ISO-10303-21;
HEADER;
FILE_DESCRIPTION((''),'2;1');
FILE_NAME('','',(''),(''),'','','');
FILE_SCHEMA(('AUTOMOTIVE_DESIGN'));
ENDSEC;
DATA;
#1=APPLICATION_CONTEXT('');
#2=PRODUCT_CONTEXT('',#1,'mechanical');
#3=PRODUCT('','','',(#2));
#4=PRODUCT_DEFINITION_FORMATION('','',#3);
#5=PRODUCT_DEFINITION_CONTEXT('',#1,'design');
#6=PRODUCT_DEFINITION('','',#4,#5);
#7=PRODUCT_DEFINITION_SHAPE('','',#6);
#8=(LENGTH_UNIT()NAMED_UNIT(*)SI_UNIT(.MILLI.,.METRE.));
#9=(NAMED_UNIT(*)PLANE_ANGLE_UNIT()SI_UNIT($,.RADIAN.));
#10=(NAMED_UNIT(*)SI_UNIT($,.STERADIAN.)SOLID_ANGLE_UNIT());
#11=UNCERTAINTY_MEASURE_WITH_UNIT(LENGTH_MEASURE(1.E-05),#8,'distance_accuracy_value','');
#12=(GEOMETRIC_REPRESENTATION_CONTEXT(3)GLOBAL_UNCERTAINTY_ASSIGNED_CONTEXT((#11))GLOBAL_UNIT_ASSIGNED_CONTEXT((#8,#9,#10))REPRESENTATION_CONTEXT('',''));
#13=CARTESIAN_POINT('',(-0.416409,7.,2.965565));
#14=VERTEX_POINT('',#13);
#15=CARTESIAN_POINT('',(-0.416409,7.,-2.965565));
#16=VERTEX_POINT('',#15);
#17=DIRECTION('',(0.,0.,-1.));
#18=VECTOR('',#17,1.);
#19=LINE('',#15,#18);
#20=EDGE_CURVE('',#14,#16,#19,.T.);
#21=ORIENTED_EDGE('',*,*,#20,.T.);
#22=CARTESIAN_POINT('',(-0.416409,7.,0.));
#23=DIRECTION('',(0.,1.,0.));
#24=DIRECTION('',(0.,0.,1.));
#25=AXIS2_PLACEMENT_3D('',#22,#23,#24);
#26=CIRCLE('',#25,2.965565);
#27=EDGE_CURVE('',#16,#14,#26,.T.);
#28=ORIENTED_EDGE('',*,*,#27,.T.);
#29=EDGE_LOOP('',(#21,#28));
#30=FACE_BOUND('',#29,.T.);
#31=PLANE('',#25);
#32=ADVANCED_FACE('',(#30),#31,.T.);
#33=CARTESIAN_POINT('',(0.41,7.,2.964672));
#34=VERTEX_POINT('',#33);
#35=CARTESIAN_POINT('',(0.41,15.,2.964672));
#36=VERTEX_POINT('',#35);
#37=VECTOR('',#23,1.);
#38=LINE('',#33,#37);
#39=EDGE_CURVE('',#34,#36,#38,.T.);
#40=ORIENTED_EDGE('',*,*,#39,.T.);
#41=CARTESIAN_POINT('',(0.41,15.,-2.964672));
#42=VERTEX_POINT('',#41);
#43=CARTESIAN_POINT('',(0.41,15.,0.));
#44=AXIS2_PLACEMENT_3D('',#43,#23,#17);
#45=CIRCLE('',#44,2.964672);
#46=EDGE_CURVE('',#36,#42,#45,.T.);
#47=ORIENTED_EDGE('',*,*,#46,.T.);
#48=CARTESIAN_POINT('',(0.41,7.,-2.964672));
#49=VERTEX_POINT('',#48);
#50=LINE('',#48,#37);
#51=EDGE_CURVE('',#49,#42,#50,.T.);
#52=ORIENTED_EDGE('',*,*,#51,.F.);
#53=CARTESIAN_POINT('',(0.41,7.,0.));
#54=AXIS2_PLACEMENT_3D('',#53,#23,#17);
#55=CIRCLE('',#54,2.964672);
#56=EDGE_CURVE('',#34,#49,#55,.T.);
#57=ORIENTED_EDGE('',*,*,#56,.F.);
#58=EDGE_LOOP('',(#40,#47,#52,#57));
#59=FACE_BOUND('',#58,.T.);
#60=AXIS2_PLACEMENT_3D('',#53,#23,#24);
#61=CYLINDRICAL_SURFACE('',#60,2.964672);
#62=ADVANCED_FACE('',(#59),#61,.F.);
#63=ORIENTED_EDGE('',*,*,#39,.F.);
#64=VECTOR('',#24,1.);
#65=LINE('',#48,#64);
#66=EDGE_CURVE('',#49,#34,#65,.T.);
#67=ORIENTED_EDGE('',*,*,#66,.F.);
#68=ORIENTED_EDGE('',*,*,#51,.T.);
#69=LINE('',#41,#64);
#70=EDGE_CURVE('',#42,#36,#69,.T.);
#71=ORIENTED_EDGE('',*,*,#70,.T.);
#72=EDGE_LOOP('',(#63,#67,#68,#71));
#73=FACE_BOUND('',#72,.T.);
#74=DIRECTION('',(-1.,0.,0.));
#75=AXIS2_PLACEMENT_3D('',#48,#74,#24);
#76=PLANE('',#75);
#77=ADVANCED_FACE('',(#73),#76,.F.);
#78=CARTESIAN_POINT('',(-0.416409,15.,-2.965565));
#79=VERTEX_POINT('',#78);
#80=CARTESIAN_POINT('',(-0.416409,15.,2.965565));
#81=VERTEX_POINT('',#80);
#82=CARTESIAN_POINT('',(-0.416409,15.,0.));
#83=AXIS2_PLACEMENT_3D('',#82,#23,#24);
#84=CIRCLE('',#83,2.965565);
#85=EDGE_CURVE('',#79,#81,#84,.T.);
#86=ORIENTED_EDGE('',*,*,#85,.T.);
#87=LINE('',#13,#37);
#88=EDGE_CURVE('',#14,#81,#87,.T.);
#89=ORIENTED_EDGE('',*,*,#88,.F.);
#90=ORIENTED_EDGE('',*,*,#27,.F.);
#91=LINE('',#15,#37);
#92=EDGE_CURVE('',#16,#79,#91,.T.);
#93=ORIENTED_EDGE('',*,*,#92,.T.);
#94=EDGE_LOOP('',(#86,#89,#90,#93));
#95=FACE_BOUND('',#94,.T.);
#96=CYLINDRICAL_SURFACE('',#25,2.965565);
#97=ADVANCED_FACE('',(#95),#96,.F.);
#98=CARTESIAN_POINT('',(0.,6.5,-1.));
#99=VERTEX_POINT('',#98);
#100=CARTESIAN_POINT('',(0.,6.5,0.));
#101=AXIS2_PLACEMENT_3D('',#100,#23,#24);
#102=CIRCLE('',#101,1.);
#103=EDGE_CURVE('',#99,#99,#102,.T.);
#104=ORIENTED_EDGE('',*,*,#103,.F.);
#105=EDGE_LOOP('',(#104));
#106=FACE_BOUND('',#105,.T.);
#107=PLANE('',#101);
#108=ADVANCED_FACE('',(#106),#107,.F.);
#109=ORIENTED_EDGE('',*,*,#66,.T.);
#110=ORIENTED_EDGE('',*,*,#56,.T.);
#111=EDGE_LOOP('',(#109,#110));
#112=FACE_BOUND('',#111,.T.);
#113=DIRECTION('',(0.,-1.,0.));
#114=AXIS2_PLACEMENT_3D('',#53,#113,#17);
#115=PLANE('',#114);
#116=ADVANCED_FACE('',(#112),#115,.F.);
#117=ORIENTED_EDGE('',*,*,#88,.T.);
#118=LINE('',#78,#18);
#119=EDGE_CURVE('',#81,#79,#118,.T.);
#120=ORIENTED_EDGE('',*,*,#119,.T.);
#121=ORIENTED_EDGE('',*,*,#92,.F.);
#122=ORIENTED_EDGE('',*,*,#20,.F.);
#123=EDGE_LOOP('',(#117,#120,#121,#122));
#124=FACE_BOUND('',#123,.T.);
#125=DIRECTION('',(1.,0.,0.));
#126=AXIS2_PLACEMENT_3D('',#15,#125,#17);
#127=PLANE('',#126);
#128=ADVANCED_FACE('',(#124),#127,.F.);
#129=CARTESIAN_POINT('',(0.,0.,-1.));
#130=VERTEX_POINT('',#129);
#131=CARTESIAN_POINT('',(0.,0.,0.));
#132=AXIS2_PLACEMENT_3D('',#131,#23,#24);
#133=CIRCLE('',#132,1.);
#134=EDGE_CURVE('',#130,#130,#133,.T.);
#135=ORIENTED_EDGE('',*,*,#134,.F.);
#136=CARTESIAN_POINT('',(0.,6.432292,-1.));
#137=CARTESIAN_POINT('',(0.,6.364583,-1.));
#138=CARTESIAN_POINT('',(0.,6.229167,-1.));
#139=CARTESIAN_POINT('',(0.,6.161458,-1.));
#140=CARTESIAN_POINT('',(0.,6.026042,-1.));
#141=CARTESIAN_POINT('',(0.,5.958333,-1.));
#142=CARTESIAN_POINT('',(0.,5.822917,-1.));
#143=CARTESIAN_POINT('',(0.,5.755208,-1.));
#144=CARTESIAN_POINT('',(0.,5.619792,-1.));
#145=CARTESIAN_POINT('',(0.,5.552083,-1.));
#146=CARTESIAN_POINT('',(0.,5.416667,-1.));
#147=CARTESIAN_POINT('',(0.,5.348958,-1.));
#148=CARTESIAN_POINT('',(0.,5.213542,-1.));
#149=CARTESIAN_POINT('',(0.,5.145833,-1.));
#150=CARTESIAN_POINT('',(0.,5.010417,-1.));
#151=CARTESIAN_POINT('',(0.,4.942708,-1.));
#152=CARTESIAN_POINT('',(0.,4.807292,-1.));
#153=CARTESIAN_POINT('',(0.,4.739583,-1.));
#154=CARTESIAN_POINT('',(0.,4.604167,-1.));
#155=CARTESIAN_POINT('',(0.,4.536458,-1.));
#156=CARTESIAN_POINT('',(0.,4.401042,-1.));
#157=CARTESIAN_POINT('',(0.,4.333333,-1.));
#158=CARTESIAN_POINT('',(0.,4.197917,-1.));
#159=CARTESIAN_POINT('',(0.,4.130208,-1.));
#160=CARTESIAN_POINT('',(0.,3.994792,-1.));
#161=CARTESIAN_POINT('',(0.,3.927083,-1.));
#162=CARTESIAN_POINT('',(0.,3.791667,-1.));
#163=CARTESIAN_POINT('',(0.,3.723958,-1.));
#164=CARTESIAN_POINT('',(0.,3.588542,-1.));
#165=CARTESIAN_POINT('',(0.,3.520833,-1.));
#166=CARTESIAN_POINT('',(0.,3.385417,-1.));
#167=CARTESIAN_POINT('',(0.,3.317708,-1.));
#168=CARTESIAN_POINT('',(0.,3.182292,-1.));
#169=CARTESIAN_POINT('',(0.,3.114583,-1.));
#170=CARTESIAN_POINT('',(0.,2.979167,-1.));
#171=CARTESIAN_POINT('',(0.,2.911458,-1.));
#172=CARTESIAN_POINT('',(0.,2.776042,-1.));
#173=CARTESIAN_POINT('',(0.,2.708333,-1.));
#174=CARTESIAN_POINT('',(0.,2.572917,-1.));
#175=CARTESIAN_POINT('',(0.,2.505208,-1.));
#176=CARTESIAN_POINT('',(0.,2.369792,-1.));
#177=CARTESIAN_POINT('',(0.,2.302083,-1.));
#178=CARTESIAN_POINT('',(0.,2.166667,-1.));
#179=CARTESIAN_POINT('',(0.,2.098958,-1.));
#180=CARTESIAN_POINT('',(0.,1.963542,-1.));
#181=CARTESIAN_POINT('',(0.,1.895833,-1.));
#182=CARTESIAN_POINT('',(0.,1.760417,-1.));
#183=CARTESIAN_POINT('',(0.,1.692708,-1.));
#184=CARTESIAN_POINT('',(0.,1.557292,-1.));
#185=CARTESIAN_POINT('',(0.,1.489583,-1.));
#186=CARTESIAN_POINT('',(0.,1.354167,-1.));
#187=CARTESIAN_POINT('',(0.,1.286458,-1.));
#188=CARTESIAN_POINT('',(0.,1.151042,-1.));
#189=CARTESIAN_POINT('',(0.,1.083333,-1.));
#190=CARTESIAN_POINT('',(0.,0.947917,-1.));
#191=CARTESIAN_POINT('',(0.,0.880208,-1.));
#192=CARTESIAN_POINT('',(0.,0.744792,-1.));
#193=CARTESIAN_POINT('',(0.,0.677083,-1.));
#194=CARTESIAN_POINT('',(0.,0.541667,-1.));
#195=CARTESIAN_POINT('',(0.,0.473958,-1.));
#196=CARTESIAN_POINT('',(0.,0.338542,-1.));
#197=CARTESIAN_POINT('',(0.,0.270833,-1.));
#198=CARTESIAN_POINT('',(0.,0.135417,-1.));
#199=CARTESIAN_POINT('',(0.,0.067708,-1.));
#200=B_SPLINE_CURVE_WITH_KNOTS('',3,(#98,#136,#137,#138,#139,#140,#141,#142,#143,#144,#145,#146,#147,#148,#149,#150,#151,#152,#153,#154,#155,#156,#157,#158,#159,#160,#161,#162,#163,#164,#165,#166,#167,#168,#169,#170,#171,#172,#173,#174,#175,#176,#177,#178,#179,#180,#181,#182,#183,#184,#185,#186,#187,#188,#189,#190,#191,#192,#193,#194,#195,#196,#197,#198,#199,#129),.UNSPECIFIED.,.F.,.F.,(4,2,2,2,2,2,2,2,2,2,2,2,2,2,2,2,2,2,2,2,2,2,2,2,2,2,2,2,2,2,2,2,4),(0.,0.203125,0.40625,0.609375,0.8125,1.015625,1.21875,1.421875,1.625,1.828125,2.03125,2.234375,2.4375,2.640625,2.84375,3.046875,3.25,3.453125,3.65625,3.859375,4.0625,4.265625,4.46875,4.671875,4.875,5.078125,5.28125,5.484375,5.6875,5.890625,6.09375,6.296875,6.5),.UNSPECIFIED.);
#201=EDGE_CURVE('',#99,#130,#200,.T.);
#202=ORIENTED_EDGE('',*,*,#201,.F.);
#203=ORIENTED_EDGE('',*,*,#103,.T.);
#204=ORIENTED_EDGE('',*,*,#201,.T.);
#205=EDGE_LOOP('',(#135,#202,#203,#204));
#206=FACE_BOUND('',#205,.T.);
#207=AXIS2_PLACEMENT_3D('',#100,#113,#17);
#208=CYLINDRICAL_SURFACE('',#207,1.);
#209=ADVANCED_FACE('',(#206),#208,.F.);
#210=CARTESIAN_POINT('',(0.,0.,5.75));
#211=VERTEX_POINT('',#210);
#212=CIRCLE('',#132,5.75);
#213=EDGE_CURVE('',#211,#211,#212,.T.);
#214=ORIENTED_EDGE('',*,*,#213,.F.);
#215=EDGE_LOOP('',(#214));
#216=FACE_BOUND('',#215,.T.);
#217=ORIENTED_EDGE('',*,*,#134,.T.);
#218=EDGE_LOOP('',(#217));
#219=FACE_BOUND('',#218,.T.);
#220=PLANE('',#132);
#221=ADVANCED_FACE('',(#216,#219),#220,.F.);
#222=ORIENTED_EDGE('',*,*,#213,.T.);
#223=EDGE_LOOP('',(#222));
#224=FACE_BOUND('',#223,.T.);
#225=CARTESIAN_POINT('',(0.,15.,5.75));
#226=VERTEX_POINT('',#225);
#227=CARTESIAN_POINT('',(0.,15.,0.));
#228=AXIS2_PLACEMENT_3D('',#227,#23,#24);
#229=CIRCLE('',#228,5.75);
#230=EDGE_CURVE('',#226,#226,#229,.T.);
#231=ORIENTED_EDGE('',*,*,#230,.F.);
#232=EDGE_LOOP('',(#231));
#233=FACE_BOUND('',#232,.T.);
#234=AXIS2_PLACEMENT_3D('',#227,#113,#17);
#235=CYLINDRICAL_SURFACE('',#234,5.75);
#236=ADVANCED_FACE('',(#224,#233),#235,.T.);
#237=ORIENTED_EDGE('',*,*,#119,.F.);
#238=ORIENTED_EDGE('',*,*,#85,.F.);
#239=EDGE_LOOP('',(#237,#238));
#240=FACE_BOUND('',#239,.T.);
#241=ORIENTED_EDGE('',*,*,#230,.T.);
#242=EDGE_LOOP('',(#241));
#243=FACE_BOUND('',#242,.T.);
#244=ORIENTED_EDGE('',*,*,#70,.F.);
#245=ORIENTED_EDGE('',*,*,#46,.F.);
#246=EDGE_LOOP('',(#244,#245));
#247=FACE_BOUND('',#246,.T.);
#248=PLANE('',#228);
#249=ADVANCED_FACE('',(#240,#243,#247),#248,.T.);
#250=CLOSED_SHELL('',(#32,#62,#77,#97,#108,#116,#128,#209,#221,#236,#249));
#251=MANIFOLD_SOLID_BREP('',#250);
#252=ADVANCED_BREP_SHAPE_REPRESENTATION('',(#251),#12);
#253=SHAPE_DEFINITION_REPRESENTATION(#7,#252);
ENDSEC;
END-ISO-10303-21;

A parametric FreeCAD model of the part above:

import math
import FreeCAD as App
import Part
import Sketcher
from FreeCAD import Vector

doc = App.newDocument("Part")
body = doc.addObject("PartDesign::Body", "Body")

sketch1 = body.newObject("Sketcher::SketchObject", "Sketch")
sketch1.AttachmentSupport = (doc.getObject("XZ_Plane"), [""])
sketch1.MapMode = "FlatFace"
sketch1.addGeometry(Part.Circle(Vector(0, 0, 0), Vector(0, 0, 1), 6), False)
sketch1.addConstraint([
    Sketcher.Constraint("Coincident", 0, 3, -1, 1),
    Sketcher.Constraint("Diameter", 0, 11.5),
])
pad1 = body.newObject("PartDesign::Pad", "Pad")
pad1.Profile = sketch1
pad1.Length = 15
pad1.Reversed = True

sketch2 = body.newObject("Sketcher::SketchObject", "Sketch001")
sketch2.AttachmentSupport = (doc.getObject("XZ_Plane"), [""])
sketch2.MapMode = "FlatFace"
sketch2.AttachmentOffset = App.Placement(Vector(0, 0, -15), App.Rotation())
sketch2.addGeometry([
    Part.LineSegment(Vector(0.4, -3, 0), Vector(0.4, 3, 0)),
    Part.ArcOfCircle(Part.Circle(Vector(0.4, 0, 0), Vector(0, 0, 1), 3), math.radians(-90), math.radians(90)),
    Part.LineSegment(Vector(-0.4, 3, 0), Vector(-0.4, -3, 0)),
    Part.ArcOfCircle(Part.Circle(Vector(-0.4, 0, 0), Vector(0, 0, 1), 3), math.radians(90), math.radians(270)),
], False)
sketch2.addConstraint([
    Sketcher.Constraint("Coincident", 0, 1, 1, 1),
    Sketcher.Constraint("Coincident", 1, 2, 0, 2),
    Sketcher.Constraint("Coincident", 2, 1, 3, 1),
    Sketcher.Constraint("Coincident", 3, 2, 2, 2),
    Sketcher.Constraint("Vertical", 0),
    Sketcher.Constraint("Vertical", 2),
    Sketcher.Constraint("PointOnObject", 1, 3, -1),
    Sketcher.Constraint("PointOnObject", 3, 3, -1),
    Sketcher.Constraint("Vertical", 1, 3, 0, 1),
    Sketcher.Constraint("Vertical", 3, 3, 2, 1),
    Sketcher.Constraint("DistanceX", -1, 1, 1, 3, 0.41),
    Sketcher.Constraint("Radius", 1, 2.964672),
    Sketcher.Constraint("Radius", 3, 2.965565),
    Sketcher.Constraint("DistanceX", 3, 3, -1, 1, 0.416409),
])
pocket1 = body.newObject("PartDesign::Pocket", "Pocket")
pocket1.Profile = sketch2
pocket1.Length = 8
pocket1.Reversed = True

sketch3 = body.newObject("Sketcher::SketchObject", "Sketch002")
sketch3.AttachmentSupport = (doc.getObject("XZ_Plane"), [""])
sketch3.MapMode = "FlatFace"
sketch3.addGeometry(Part.Circle(Vector(0, 0, 0), Vector(0, 0, 1), 1), False)
sketch3.addConstraint([
    Sketcher.Constraint("Coincident", 0, 3, -1, 1),
    Sketcher.Constraint("Diameter", 0, 2.0),
])
pocket2 = body.newObject("PartDesign::Pocket", "Pocket001")
pocket2.Profile = sketch3
pocket2.Length = 6.5

doc.recompute()
